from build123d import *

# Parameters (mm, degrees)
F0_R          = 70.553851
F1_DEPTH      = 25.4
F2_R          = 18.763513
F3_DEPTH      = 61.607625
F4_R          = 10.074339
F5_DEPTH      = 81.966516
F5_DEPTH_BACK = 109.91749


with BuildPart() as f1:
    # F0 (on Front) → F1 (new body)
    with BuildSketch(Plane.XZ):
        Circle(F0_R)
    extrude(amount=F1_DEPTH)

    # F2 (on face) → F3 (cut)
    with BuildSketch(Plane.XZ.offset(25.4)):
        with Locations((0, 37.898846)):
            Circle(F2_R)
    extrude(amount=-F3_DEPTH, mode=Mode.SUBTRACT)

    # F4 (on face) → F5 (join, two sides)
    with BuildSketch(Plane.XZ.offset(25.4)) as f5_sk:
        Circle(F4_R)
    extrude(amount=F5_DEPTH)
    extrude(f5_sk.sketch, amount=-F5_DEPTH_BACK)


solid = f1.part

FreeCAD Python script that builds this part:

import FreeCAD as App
import Part
import Sketcher

V = App.Vector
Q = App.Units.Quantity

doc = App.newDocument("Part")
body = doc.addObject("PartDesign::Body", "Body")

# Sketch on XZ plane
sketch1 = body.newObject("Sketcher::SketchObject", "Sketch")
sketch1.AttachmentSupport = (doc.getObject("XZ_Plane"), [""])
sketch1.MapMode = "FlatFace"
sketch1.addGeometry(Part.Circle(V(0, 0, 0), V(0, 0, 1), 71), False)
sketch1.addConstraint([
    Sketcher.Constraint("Coincident", 0, 3, -1, 1),
    Sketcher.Constraint("Diameter", 0, Q("141.107702 mm")),
])
pad1 = body.newObject("PartDesign::Pad", "Pad")
pad1.Profile = sketch1
pad1.Length = Q("1 in")

# Sketch on XZ plane
sketch2 = body.newObject("Sketcher::SketchObject", "Sketch001")
sketch2.AttachmentSupport = (doc.getObject("XZ_Plane"), [""])
sketch2.MapMode = "FlatFace"
sketch2.AttachmentOffset = App.Placement(V(0, 0, 1 * 25.4), App.Rotation())
sketch2.addGeometry(Part.Circle(V(0, 38, 0), V(0, 0, 1), 19), False)
sketch2.addConstraint([
    Sketcher.Constraint("PointOnObject", 0, 3, -2),
    Sketcher.Constraint("Diameter", 0, Q("37.527026 mm")),
    Sketcher.Constraint("DistanceY", -1, 1, 0, 3, Q("37.898846 mm")),
])
pocket1 = body.newObject("PartDesign::Pocket", "Pocket")
pocket1.Profile = sketch2
pocket1.Length = 61.607625

# Sketch on XZ plane
sketch3 = body.newObject("Sketcher::SketchObject", "Sketch002")
sketch3.AttachmentSupport = (doc.getObject("XZ_Plane"), [""])
sketch3.MapMode = "FlatFace"
sketch3.AttachmentOffset = App.Placement(V(0, 0, 1 * 25.4), App.Rotation())
sketch3.addGeometry(Part.Circle(V(0, 0, 0), V(0, 0, 1), 10), False)
sketch3.addConstraint([
    Sketcher.Constraint("Coincident", 0, 3, -1, 1),
    Sketcher.Constraint("Diameter", 0, Q("20.148678 mm")),
])
pad2 = body.newObject("PartDesign::Pad", "Pad001")
pad2.Profile = sketch3
pad2.Type = "TwoLengths"
pad2.Length = 81.966516
pad2.Length2 = 109.91749

doc.recompute()
